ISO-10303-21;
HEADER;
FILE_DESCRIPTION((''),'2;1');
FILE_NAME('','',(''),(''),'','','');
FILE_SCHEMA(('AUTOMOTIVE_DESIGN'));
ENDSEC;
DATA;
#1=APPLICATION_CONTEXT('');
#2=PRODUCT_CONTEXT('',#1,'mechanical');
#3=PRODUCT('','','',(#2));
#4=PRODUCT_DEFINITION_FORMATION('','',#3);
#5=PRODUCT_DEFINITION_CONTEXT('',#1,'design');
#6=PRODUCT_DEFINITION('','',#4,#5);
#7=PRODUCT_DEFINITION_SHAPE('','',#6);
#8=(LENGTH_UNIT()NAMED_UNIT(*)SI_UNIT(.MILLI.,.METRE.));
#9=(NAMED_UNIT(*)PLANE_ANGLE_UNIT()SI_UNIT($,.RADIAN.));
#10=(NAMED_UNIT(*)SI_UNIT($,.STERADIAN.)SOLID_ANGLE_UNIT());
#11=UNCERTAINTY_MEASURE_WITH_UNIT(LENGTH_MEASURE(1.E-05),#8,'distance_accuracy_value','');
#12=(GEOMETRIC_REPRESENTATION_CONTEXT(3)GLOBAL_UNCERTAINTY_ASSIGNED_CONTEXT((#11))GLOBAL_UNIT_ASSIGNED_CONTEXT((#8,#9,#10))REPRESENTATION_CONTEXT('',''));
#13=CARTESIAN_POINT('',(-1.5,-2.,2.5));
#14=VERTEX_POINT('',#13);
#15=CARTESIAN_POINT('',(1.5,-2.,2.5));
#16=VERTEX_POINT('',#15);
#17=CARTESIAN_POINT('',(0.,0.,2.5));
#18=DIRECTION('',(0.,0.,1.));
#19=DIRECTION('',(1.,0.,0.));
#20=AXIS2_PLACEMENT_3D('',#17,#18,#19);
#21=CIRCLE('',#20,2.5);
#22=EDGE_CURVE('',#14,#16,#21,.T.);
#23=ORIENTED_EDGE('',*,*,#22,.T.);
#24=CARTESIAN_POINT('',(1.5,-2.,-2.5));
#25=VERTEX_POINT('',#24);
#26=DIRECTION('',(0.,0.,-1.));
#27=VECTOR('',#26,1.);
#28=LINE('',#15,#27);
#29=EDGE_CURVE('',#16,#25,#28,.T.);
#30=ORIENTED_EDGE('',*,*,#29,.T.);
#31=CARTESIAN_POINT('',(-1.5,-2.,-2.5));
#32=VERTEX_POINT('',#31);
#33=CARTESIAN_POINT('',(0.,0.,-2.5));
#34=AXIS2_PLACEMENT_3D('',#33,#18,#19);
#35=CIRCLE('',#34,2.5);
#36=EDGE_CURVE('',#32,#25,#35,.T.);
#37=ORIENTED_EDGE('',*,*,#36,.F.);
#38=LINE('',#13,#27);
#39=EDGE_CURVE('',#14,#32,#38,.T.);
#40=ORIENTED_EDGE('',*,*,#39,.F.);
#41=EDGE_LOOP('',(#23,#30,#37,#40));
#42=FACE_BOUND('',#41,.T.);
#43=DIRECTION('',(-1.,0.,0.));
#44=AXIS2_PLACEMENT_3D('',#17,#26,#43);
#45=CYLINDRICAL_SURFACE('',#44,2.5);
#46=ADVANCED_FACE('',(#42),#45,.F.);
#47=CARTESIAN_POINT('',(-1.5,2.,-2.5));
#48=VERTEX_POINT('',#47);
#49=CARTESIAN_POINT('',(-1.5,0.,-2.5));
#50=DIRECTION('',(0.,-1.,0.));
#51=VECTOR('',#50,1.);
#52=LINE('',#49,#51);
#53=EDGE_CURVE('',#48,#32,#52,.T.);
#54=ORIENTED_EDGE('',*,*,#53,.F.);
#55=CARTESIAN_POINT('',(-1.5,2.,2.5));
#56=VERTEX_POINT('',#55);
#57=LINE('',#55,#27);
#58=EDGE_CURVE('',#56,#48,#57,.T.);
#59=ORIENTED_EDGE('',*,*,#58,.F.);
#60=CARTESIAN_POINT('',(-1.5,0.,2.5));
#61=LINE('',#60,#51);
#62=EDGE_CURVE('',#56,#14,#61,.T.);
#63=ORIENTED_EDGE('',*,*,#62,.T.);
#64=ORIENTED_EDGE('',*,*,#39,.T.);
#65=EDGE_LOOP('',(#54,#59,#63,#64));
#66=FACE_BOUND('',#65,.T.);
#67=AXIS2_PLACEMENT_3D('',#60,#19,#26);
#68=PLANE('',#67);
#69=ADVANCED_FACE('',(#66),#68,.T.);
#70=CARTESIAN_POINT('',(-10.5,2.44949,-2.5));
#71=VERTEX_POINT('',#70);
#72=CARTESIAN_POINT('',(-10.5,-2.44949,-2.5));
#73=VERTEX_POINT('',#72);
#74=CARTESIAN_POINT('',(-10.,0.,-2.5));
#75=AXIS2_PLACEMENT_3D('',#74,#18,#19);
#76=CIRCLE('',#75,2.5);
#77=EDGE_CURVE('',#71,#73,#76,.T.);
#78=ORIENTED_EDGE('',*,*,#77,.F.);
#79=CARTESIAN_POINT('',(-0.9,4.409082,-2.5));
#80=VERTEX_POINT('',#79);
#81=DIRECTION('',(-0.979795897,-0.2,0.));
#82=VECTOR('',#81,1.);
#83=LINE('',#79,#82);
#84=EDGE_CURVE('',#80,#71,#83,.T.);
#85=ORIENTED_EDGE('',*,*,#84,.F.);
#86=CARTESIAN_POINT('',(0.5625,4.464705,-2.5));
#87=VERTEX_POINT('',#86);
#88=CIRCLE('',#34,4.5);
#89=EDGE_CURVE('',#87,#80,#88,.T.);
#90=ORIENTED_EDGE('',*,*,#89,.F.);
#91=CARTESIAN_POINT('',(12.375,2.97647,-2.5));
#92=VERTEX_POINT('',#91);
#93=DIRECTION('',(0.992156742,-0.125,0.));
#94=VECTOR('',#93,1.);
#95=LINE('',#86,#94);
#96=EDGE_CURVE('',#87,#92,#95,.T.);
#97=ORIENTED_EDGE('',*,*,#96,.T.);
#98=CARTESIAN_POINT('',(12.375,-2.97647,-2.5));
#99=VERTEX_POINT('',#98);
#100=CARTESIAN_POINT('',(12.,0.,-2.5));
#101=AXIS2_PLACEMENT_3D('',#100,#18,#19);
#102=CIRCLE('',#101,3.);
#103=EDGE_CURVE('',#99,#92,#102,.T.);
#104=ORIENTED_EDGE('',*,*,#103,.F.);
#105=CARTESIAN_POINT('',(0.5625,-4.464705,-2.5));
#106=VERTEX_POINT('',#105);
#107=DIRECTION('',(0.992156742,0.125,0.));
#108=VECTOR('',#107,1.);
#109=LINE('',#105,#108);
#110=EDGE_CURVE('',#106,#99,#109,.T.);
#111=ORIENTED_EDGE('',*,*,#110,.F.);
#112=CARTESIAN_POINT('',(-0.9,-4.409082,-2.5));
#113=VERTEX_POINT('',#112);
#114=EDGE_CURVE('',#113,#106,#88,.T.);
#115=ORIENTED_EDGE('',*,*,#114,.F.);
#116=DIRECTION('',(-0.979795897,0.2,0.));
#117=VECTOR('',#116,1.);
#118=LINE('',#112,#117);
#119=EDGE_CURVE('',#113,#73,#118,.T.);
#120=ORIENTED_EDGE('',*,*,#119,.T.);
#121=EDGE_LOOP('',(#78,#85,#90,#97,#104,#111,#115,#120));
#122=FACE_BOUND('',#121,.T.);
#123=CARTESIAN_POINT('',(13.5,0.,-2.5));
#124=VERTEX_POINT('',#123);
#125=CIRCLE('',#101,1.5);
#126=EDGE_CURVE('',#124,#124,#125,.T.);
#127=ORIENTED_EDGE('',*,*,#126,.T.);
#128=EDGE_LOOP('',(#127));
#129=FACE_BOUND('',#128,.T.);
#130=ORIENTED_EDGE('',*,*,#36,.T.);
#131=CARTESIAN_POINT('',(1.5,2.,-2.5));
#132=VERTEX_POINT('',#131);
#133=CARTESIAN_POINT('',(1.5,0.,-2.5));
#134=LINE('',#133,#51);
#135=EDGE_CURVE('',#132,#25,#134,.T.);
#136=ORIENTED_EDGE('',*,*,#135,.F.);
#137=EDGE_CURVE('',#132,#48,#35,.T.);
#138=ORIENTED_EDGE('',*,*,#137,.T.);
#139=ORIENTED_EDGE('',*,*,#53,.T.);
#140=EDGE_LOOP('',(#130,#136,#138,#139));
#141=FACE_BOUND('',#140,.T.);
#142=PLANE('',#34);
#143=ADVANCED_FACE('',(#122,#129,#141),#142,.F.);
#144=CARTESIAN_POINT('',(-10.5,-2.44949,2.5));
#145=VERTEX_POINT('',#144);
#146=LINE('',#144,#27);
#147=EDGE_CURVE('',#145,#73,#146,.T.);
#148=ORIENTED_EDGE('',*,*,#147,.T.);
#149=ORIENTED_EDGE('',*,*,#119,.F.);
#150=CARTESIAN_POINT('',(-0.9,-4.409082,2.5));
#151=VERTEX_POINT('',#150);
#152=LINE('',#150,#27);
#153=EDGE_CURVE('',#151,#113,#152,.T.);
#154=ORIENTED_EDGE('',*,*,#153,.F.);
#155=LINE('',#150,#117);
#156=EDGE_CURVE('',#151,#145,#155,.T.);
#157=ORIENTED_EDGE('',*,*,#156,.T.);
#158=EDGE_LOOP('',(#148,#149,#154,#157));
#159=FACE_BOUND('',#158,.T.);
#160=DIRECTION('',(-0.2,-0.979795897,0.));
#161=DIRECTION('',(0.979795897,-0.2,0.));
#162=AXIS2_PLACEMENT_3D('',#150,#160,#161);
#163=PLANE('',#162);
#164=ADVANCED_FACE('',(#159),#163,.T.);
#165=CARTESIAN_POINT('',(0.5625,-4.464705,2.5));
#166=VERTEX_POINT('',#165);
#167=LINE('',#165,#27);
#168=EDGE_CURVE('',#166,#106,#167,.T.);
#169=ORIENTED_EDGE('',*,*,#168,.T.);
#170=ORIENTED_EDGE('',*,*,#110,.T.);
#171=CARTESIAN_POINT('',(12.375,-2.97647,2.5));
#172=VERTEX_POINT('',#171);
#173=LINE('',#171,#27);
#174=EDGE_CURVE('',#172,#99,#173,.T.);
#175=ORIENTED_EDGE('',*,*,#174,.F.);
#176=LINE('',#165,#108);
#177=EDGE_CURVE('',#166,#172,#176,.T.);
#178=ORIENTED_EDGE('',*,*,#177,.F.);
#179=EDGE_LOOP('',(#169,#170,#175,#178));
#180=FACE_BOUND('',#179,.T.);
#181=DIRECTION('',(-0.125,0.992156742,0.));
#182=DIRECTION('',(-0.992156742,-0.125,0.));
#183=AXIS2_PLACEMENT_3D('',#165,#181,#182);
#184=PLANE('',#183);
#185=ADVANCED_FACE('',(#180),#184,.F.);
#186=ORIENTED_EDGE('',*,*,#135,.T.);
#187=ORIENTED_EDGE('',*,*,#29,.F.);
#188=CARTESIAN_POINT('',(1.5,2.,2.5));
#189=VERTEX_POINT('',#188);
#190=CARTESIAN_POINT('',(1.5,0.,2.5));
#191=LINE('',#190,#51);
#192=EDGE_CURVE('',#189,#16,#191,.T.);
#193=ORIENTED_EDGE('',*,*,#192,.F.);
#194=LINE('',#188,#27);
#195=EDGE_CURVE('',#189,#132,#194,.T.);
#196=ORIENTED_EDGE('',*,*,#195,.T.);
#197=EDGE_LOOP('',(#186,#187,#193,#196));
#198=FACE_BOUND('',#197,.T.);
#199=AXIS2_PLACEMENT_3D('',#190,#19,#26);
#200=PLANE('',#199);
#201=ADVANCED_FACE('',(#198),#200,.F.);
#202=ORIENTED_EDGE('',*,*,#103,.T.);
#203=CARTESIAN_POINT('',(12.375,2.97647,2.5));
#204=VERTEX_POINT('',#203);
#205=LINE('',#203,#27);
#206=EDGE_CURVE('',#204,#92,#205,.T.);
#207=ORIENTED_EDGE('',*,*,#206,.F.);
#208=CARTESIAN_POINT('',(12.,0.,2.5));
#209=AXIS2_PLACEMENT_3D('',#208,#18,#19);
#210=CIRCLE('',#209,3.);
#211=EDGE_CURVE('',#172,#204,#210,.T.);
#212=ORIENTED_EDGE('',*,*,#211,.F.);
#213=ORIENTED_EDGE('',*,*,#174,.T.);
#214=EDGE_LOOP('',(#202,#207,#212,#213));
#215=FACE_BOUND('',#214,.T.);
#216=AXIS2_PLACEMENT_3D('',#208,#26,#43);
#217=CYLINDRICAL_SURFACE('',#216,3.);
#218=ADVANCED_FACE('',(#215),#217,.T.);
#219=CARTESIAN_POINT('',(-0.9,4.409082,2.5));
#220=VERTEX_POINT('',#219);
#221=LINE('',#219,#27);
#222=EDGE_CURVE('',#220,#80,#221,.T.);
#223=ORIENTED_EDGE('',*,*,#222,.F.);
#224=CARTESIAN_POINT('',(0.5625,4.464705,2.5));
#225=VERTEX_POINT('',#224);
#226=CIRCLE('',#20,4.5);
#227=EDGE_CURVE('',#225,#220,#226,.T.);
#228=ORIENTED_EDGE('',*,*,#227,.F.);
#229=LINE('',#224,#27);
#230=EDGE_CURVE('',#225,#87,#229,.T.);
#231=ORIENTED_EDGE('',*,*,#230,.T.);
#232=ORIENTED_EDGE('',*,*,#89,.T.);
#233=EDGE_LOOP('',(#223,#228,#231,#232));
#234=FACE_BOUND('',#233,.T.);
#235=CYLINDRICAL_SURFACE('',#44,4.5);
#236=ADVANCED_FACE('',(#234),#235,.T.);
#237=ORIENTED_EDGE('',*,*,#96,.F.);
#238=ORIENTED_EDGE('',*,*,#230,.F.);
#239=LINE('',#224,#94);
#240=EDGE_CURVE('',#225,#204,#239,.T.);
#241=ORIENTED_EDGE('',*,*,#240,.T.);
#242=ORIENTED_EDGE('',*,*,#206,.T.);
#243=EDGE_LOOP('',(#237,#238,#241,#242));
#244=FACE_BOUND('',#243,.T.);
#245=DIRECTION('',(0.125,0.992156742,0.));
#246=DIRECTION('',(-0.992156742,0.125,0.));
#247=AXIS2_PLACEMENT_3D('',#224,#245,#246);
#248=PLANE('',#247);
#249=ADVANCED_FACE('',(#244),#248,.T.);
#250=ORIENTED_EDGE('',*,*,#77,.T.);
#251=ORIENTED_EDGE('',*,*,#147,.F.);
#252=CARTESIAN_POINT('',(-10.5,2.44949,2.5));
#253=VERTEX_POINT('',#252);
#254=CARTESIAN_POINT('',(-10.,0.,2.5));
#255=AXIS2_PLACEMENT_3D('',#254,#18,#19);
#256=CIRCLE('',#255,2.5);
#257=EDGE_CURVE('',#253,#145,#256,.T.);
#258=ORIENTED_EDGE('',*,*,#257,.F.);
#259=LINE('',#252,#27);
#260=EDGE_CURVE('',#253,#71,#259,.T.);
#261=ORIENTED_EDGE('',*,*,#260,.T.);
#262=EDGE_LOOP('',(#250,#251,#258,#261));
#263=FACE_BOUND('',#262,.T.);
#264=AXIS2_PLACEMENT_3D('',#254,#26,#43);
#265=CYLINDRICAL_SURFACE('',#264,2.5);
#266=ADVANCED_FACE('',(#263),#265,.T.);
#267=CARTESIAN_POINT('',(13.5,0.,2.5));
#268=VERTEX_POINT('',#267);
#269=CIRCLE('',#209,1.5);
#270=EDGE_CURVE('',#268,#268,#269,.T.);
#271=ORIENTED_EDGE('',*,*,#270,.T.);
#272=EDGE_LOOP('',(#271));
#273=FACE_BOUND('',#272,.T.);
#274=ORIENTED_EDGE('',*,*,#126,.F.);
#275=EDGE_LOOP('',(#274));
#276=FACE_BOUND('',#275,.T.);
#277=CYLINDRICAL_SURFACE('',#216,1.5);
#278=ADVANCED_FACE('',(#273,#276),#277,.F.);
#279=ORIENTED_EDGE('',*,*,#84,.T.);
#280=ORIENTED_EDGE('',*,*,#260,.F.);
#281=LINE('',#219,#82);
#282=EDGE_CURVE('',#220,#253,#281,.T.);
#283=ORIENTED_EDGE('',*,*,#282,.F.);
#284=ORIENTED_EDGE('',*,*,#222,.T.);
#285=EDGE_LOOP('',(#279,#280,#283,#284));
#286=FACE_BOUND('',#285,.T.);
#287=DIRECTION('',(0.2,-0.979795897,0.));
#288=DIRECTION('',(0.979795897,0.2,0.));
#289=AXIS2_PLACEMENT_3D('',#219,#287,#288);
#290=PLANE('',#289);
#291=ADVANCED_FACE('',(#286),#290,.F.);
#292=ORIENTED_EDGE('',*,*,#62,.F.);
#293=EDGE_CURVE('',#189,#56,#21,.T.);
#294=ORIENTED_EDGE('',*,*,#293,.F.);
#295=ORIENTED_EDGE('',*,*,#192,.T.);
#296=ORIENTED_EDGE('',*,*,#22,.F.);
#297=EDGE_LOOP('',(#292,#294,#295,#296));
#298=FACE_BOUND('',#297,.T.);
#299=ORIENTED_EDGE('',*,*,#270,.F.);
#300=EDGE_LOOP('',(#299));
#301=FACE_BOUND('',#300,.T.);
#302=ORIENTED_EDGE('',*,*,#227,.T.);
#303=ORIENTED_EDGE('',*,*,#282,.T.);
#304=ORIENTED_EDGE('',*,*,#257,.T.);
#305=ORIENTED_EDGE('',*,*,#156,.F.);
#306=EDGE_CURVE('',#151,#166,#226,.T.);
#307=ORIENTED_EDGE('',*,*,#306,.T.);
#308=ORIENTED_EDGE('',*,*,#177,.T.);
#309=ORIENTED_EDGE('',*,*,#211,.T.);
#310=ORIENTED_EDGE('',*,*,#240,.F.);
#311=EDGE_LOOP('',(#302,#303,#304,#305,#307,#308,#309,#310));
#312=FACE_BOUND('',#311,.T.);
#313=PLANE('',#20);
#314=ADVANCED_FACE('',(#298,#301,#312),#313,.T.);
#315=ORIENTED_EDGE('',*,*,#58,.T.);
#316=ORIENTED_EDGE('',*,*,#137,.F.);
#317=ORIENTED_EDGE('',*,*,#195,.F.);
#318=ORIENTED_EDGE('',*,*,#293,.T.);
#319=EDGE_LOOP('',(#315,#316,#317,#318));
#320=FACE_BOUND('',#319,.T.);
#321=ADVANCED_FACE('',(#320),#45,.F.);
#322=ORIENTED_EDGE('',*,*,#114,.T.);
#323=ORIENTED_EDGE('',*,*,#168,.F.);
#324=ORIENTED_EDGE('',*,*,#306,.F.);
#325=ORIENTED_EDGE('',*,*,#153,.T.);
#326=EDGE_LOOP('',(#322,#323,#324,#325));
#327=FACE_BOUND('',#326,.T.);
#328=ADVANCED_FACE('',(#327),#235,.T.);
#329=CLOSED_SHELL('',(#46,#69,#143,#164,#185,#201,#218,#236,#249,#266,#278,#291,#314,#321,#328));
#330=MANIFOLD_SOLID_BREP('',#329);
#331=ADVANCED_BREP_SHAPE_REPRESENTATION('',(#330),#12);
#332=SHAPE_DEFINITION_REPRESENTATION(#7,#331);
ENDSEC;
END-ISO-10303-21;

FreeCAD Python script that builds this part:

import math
import FreeCAD as App
import Part
import Sketcher
Q = App.Units.Quantity

doc = App.newDocument("Part")
body = doc.addObject("PartDesign::Body", "Body")

sketch1 = doc.addObject("Sketcher::SketchObject", "Sketch")
body.addObject(sketch1)
sketch1.AttachmentSupport = (doc.XY_Plane, [""])
sketch1.MapMode = "FlatFace"
sketch1.addGeometry(Part.LineSegment(App.Vector(-0.9, 4.409082, 0), App.Vector(-10.5, 2.44949, 0)), False)
sketch1.addGeometry(Part.ArcOfCircle(Part.Circle(App.Vector(-10, 0, 0), App.Vector(0, 0, 1), 2.5), math.radians(101.536959), math.radians(258.463041)), False)
sketch1.addGeometry(Part.LineSegment(App.Vector(-10.5, -2.44949, 0), App.Vector(-0.9, -4.409082, 0)), False)
sketch1.addGeometry(Part.ArcOfCircle(Part.Circle(App.Vector(0, 0, 0), App.Vector(0, 0, 1), 4.5), math.radians(-101.536959), math.radians(-82.819244)), False)
sketch1.addGeometry(Part.LineSegment(App.Vector(0.5625, -4.464705, 0), App.Vector(12.375, -2.97647, 0)), False)
sketch1.addGeometry(Part.ArcOfCircle(Part.Circle(App.Vector(12, 0, 0), App.Vector(0, 0, 1), 3), math.radians(-82.819244), math.radians(82.819244)), False)
sketch1.addGeometry(Part.LineSegment(App.Vector(12.375, 2.97647, 0), App.Vector(0.5625, 4.464705, 0)), False)
sketch1.addGeometry(Part.ArcOfCircle(Part.Circle(App.Vector(0, 0, 0), App.Vector(0, 0, 1), 4.5), math.radians(82.819244), math.radians(101.536959)), False)
sketch1.addGeometry(Part.ArcOfCircle(Part.Circle(App.Vector(0, 0, 0), App.Vector(0, 0, 1), 2.5), math.radians(53.130102), math.radians(126.869898)), False)
sketch1.addGeometry(Part.LineSegment(App.Vector(1.5, 2, 0), App.Vector(1.5, -2, 0)), False)
sketch1.addGeometry(Part.ArcOfCircle(Part.Circle(App.Vector(0, 0, 0), App.Vector(0, 0, 1), 2.5), math.radians(-126.869898), math.radians(-53.130102)), False)
sketch1.addGeometry(Part.LineSegment(App.Vector(-1.5, -2, 0), App.Vector(-1.5, 2, 0)), False)
sketch1.addGeometry(Part.Circle(App.Vector(12, 0, 0), App.Vector(0, 0, 1), 1.5), False)
sketch1.addConstraint(Sketcher.Constraint("Tangent", 0, 2, 1, 1))
sketch1.addConstraint(Sketcher.Constraint("Tangent", 1, 2, 2, 1))
sketch1.addConstraint(Sketcher.Constraint("Tangent", 2, 2, 3, 1))
sketch1.addConstraint(Sketcher.Constraint("Tangent", 3, 2, 4, 1))
sketch1.addConstraint(Sketcher.Constraint("Tangent", 4, 2, 5, 1))
sketch1.addConstraint(Sketcher.Constraint("Tangent", 5, 2, 6, 1))
sketch1.addConstraint(Sketcher.Constraint("Tangent", 6, 2, 7, 1))
sketch1.addConstraint(Sketcher.Constraint("Tangent", 7, 2, 0, 1))
sketch1.addConstraint(Sketcher.Constraint("Coincident", 8, 1, 9, 1))
sketch1.addConstraint(Sketcher.Constraint("Coincident", 9, 2, 10, 2))
sketch1.addConstraint(Sketcher.Constraint("Coincident", 10, 1, 11, 1))
sketch1.addConstraint(Sketcher.Constraint("Coincident", 11, 2, 8, 2))
sketch1.addConstraint(Sketcher.Constraint("Vertical", 9))
sketch1.addConstraint(Sketcher.Constraint("Vertical", 11))
sketch1.addConstraint(Sketcher.Constraint("Coincident", 3, 3, -1, 1))
sketch1.addConstraint(Sketcher.Constraint("Coincident", 7, 3, -1, 1))
sketch1.addConstraint(Sketcher.Constraint("Coincident", 8, 3, -1, 1))
sketch1.addConstraint(Sketcher.Constraint("Coincident", 10, 3, -1, 1))
sketch1.addConstraint(Sketcher.Constraint("Coincident", 12, 3, 5, 3))
sketch1.addConstraint(Sketcher.Constraint("Equal", 3, 7))
sketch1.addConstraint(Sketcher.Constraint("Equal", 1, 8))
sketch1.addConstraint(Sketcher.Constraint("Equal", 8, 10))
sketch1.addConstraint(Sketcher.Constraint("PointOnObject", 1, 3, -1))
sketch1.addConstraint(Sketcher.Constraint("PointOnObject", 5, 3, -1))
sketch1.addConstraint(Sketcher.Constraint("Horizontal", 9, 2, 10, 1))
sketch1.addConstraint(Sketcher.Constraint("Diameter", 12, Q("3 mm")))
sketch1.addConstraint(Sketcher.Constraint("Radius", 5, Q("3 mm")))
sketch1.addConstraint(Sketcher.Constraint("Radius", 1, Q("2.5 mm")))
sketch1.addConstraint(Sketcher.Constraint("Radius", 3, Q("4.5 mm")))
sketch1.addConstraint(Sketcher.Constraint("DistanceY", 9, 2, 9, 1, Q("4 mm")))
sketch1.addConstraint(Sketcher.Constraint("DistanceX", 1, 3, -1, 1, Q("10 mm")))
sketch1.addConstraint(Sketcher.Constraint("DistanceX", -1, 1, 5, 3, Q("12 mm")))
pad1 = doc.addObject("PartDesign::Pad", "Pad")
body.addObject(pad1)
pad1.Profile = sketch1
pad1.Length = 5
pad1.Midplane = True

doc.recompute()
